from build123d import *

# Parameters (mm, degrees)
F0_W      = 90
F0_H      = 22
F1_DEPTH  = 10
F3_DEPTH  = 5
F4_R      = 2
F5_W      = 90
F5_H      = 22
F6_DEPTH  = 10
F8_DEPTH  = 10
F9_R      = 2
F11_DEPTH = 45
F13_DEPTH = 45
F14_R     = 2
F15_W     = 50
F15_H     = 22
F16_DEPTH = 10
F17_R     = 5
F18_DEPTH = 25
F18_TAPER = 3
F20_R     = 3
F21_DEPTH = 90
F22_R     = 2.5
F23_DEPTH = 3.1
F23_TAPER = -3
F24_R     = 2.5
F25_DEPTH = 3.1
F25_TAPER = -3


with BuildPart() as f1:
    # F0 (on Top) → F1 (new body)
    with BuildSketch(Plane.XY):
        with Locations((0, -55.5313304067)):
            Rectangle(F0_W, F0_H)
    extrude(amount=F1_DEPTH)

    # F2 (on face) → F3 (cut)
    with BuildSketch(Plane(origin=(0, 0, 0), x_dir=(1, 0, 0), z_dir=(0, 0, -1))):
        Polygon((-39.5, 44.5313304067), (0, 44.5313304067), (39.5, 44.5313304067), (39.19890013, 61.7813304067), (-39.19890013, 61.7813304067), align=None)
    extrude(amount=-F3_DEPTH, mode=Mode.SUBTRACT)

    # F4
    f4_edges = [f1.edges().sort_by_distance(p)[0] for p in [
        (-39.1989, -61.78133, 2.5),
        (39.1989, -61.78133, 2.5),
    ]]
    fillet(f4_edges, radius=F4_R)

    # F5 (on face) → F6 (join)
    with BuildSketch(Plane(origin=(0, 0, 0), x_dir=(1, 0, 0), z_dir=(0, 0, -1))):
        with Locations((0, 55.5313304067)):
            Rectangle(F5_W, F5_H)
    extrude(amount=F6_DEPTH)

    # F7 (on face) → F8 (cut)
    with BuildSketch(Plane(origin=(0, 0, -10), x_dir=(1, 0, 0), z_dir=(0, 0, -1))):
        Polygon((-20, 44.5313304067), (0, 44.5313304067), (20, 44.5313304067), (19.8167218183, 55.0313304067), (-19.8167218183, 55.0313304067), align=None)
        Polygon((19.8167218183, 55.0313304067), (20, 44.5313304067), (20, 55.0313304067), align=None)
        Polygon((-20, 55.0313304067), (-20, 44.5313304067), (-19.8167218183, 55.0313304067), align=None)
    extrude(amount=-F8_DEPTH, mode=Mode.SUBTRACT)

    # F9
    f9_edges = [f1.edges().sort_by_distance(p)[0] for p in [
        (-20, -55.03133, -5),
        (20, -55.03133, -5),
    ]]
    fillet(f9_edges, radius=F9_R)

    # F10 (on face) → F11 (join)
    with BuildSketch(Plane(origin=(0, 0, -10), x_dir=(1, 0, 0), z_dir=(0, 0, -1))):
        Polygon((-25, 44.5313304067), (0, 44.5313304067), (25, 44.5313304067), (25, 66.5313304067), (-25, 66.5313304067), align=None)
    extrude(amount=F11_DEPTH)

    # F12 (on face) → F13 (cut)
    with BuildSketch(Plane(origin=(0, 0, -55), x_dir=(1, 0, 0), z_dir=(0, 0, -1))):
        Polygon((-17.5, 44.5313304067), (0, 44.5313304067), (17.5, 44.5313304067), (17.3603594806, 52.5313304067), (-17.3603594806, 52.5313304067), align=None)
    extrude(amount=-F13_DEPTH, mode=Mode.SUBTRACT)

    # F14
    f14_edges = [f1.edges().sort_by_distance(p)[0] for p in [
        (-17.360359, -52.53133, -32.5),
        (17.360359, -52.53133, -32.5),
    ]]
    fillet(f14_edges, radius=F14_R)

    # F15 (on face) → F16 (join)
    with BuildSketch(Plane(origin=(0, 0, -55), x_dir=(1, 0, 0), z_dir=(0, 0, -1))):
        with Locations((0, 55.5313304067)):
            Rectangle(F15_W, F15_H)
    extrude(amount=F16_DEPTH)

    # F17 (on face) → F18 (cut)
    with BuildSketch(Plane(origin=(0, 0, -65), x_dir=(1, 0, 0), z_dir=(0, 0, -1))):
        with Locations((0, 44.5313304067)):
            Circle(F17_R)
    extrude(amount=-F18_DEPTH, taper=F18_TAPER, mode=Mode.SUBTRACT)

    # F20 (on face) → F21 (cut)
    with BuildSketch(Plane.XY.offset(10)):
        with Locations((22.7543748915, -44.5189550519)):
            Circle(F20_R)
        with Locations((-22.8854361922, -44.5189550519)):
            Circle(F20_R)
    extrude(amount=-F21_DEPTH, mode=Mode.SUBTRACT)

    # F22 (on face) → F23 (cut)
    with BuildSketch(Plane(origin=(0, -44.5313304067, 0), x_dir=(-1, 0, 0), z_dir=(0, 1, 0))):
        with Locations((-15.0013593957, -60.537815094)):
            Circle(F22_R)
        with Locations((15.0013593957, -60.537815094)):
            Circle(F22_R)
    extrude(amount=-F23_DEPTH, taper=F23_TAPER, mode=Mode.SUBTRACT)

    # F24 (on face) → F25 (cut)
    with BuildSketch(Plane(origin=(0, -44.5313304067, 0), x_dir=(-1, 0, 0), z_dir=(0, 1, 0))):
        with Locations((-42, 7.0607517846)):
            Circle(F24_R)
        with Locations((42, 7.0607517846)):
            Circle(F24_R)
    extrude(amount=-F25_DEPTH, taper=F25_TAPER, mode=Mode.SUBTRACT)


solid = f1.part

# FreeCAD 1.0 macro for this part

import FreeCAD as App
import Part
import Sketcher
Q = App.Units.Quantity


def edges_at(feature, points):
    """Names of the edges that pass closest to the given points."""
    edges = feature.Shape.Edges
    near = lambda p: min(range(len(edges)), key=lambda i: edges[i].distToShape(Part.Vertex(*p))[0])
    return sorted({f"Edge{near(p) + 1}" for p in points})

doc = App.newDocument("Part")
body = doc.addObject("PartDesign::Body", "Body")

# Sketch on XY plane
sketch1 = body.newObject("Sketcher::SketchObject", "Sketch")
sketch1.AttachmentSupport = (doc.getObject("XY_Plane"), [""])
sketch1.MapMode = "FlatFace"
sketch1.addGeometry([
    Part.LineSegment(App.Vector(-45, -44.53133, 0), App.Vector(-45, -66.53133, 0)),
    Part.LineSegment(App.Vector(-45, -66.53133, 0), App.Vector(45, -66.53133, 0)),
    Part.LineSegment(App.Vector(45, -66.53133, 0), App.Vector(45, -44.53133, 0)),
    Part.LineSegment(App.Vector(45, -44.53133, 0), App.Vector(-45, -44.53133, 0)),
], False)
sketch1.addConstraint([
    Sketcher.Constraint("Coincident", 0, 2, 1, 1),
    Sketcher.Constraint("Coincident", 1, 2, 2, 1),
    Sketcher.Constraint("Coincident", 2, 2, 3, 1),
    Sketcher.Constraint("Coincident", 3, 2, 0, 1),
    Sketcher.Constraint("Vertical", 0),
    Sketcher.Constraint("Horizontal", 1),
    Sketcher.Constraint("Vertical", 2),
    Sketcher.Constraint("Horizontal", 3),
    Sketcher.Constraint("DistanceX", 1, 1, 1, 2, 90.0),
    Sketcher.Constraint("DistanceY", 0, 2, 0, 1, 22.0),
    Sketcher.Constraint("DistanceX", 0, 2, -1, 1, 45.0),
    Sketcher.Constraint("DistanceY", 0, 2, -1, 1, 66.53133),
])
pad1 = body.newObject("PartDesign::Pad", "Pad")
pad1.Profile = sketch1
pad1.Length = 10

# Sketch on XY plane
sketch2 = body.newObject("Sketcher::SketchObject", "Sketch001")
sketch2.AttachmentSupport = (doc.getObject("XY_Plane"), [""])
sketch2.MapMode = "FlatFace"
sketch2.addGeometry([
    Part.LineSegment(App.Vector(-39.5, -44.53133, 0), App.Vector(39.5, -44.53133, 0)),
    Part.LineSegment(App.Vector(39.5, -44.53133, 0), App.Vector(39.1989, -61.78133, 0)),
    Part.LineSegment(App.Vector(39.1989, -61.78133, 0), App.Vector(-39.1989, -61.78133, 0)),
    Part.LineSegment(App.Vector(-39.1989, -61.78133, 0), App.Vector(-39.5, -44.53133, 0)),
], False)
sketch2.addConstraint([
    Sketcher.Constraint("Coincident", 0, 2, 1, 1),
    Sketcher.Constraint("Coincident", 1, 2, 2, 1),
    Sketcher.Constraint("Coincident", 2, 2, 3, 1),
    Sketcher.Constraint("Coincident", 3, 2, 0, 1),
    Sketcher.Constraint("Horizontal", 0),
    Sketcher.Constraint("Horizontal", 2),
    Sketcher.Constraint("Equal", 1, 3),
    Sketcher.Constraint("DistanceX", 0, 1, 0, 2, 79.0),
    Sketcher.Constraint("Angle", 1, Q("-91 deg")),
    Sketcher.Constraint("DistanceX", -1, 1, 0, 2, 39.5),
    Sketcher.Constraint("DistanceY", 1, 2, 0, 2, 17.25),
    Sketcher.Constraint("DistanceY", 0, 2, -1, 1, 44.53133),
])
pocket1 = body.newObject("PartDesign::Pocket", "Pocket")
pocket1.Profile = sketch2
pocket1.Length = 5
pocket1.Reversed = True
doc.recompute()

fillet = body.newObject("PartDesign::Fillet", "Fillet")
fillet.Base = (pocket1, edges_at(pocket1, [(-39.199, -61.781, 2.5), (39.199, -61.781, 2.5)]))
fillet.Radius = 2

# Sketch on XY plane
sketch3 = body.newObject("Sketcher::SketchObject", "Sketch002")
sketch3.AttachmentSupport = (doc.getObject("XY_Plane"), [""])
sketch3.MapMode = "FlatFace"
sketch3.addGeometry([
    Part.LineSegment(App.Vector(-45, -66.53133, 0), App.Vector(-45, -44.53133, 0)),
    Part.LineSegment(App.Vector(-45, -44.53133, 0), App.Vector(45, -44.53133, 0)),
    Part.LineSegment(App.Vector(45, -44.53133, 0), App.Vector(45, -66.53133, 0)),
    Part.LineSegment(App.Vector(45, -66.53133, 0), App.Vector(-45, -66.53133, 0)),
], False)
sketch3.addConstraint([
    Sketcher.Constraint("Coincident", 0, 2, 1, 1),
    Sketcher.Constraint("Coincident", 1, 2, 2, 1),
    Sketcher.Constraint("Coincident", 2, 2, 3, 1),
    Sketcher.Constraint("Coincident", 3, 2, 0, 1),
    Sketcher.Constraint("Vertical", 0),
    Sketcher.Constraint("Horizontal", 1),
    Sketcher.Constraint("Vertical", 2),
    Sketcher.Constraint("Horizontal", 3),
    Sketcher.Constraint("DistanceX", 1, 1, 1, 2, 90.0),
    Sketcher.Constraint("DistanceY", 0, 1, 0, 2, 22.0),
    Sketcher.Constraint("DistanceX", 0, 2, -1, 1, 45.0),
    Sketcher.Constraint("DistanceY", 0, 2, -1, 1, 44.53133),
])
pad2 = body.newObject("PartDesign::Pad", "Pad001")
pad2.Profile = sketch3
pad2.Length = 10
pad2.Reversed = True

# Sketch on XY plane
sketch4 = body.newObject("Sketcher::SketchObject", "Sketch003")
sketch4.AttachmentSupport = (doc.getObject("XY_Plane"), [""])
sketch4.MapMode = "FlatFace"
sketch4.AttachmentOffset = App.Placement(App.Vector(0, 0, -10), App.Rotation())
sketch4.addGeometry([
    Part.LineSegment(App.Vector(-20, -55.03133, 0), App.Vector(-20, -44.53133, 0)),
    Part.LineSegment(App.Vector(-20, -44.53133, 0), App.Vector(20, -44.53133, 0)),
    Part.LineSegment(App.Vector(20, -44.53133, 0), App.Vector(20, -55.03133, 0)),
    Part.LineSegment(App.Vector(20, -55.03133, 0), App.Vector(-20, -55.03133, 0)),
], False)
sketch4.addConstraint([
    Sketcher.Constraint("Coincident", 0, 2, 1, 1),
    Sketcher.Constraint("Coincident", 1, 2, 2, 1),
    Sketcher.Constraint("Coincident", 2, 2, 3, 1),
    Sketcher.Constraint("Coincident", 3, 2, 0, 1),
    Sketcher.Constraint("Vertical", 0),
    Sketcher.Constraint("Horizontal", 1),
    Sketcher.Constraint("Vertical", 2),
    Sketcher.Constraint("Horizontal", 3),
    Sketcher.Constraint("DistanceX", 1, 1, 1, 2, 40.0),
    Sketcher.Constraint("DistanceY", 0, 1, 0, 2, 10.5),
    Sketcher.Constraint("DistanceX", 0, 2, -1, 1, 20.0),
    Sketcher.Constraint("DistanceY", 0, 2, -1, 1, 44.53133),
])
pocket2 = body.newObject("PartDesign::Pocket", "Pocket001")
pocket2.Profile = sketch4
pocket2.Length = 10
pocket2.Reversed = True
doc.recompute()

fillet2 = body.newObject("PartDesign::Fillet", "Fillet001")
fillet2.Base = (pocket2, edges_at(pocket2, [(-20, -55.031, -5), (20, -55.031, -5)]))
fillet2.Radius = 2

# Sketch on XY plane
sketch5 = body.newObject("Sketcher::SketchObject", "Sketch004")
sketch5.AttachmentSupport = (doc.getObject("XY_Plane"), [""])
sketch5.MapMode = "FlatFace"
sketch5.AttachmentOffset = App.Placement(App.Vector(0, 0, -10), App.Rotation())
sketch5.addGeometry([
    Part.LineSegment(App.Vector(-25, -44.53133, 0), App.Vector(25, -44.53133, 0)),
    Part.LineSegment(App.Vector(25, -44.53133, 0), App.Vector(25, -66.53133, 0)),
    Part.LineSegment(App.Vector(25, -66.53133, 0), App.Vector(-25, -66.53133, 0)),
    Part.LineSegment(App.Vector(-25, -66.53133, 0), App.Vector(-25, -44.53133, 0)),
], False)
sketch5.addConstraint([
    Sketcher.Constraint("Coincident", 0, 2, 1, 1),
    Sketcher.Constraint("Coincident", 1, 2, 2, 1),
    Sketcher.Constraint("Coincident", 2, 2, 3, 1),
    Sketcher.Constraint("Coincident", 3, 2, 0, 1),
    Sketcher.Constraint("Horizontal", 0),
    Sketcher.Constraint("Vertical", 1),
    Sketcher.Constraint("Horizontal", 2),
    Sketcher.Constraint("Vertical", 3),
    Sketcher.Constraint("DistanceX", 0, 1, 0, 2, 50.0),
    Sketcher.Constraint("DistanceY", 1, 2, 1, 1, 22.0),
    Sketcher.Constraint("DistanceX", -1, 1, 0, 2, 25.0),
    Sketcher.Constraint("DistanceY", 0, 2, -1, 1, 44.53133),
])
pad3 = body.newObject("PartDesign::Pad", "Pad002")
pad3.Profile = sketch5
pad3.Length = 45
pad3.Reversed = True

# Sketch on XY plane
sketch6 = body.newObject("Sketcher::SketchObject", "Sketch005")
sketch6.AttachmentSupport = (doc.getObject("XY_Plane"), [""])
sketch6.MapMode = "FlatFace"
sketch6.AttachmentOffset = App.Placement(App.Vector(0, 0, -55), App.Rotation())
sketch6.addGeometry([
    Part.LineSegment(App.Vector(-17.5, -44.53133, 0), App.Vector(17.5, -44.53133, 0)),
    Part.LineSegment(App.Vector(17.5, -44.53133, 0), App.Vector(17.360359, -52.53133, 0)),
    Part.LineSegment(App.Vector(17.360359, -52.53133, 0), App.Vector(-17.360359, -52.53133, 0)),
    Part.LineSegment(App.Vector(-17.360359, -52.53133, 0), App.Vector(-17.5, -44.53133, 0)),
], False)
sketch6.addConstraint([
    Sketcher.Constraint("Coincident", 0, 2, 1, 1),
    Sketcher.Constraint("Coincident", 1, 2, 2, 1),
    Sketcher.Constraint("Coincident", 2, 2, 3, 1),
    Sketcher.Constraint("Coincident", 3, 2, 0, 1),
    Sketcher.Constraint("Horizontal", 0),
    Sketcher.Constraint("Horizontal", 2),
    Sketcher.Constraint("Equal", 1, 3),
    Sketcher.Constraint("DistanceX", 0, 1, 0, 2, 35.0),
    Sketcher.Constraint("Angle", 1, Q("-91 deg")),
    Sketcher.Constraint("DistanceY", 1, 2, 0, 2, 8.0),
    Sketcher.Constraint("DistanceX", -1, 1, 0, 2, 17.5),
    Sketcher.Constraint("DistanceY", 0, 2, -1, 1, 44.53133),
])
pocket3 = body.newObject("PartDesign::Pocket", "Pocket002")
pocket3.Profile = sketch6
pocket3.Length = 45
pocket3.Reversed = True
doc.recompute()

fillet3 = body.newObject("PartDesign::Fillet", "Fillet002")
fillet3.Base = (pocket3, edges_at(pocket3, [(-17.36, -52.531, -32.5), (17.36, -52.531, -32.5)]))
fillet3.Radius = 2

# Sketch on XY plane
sketch7 = body.newObject("Sketcher::SketchObject", "Sketch006")
sketch7.AttachmentSupport = (doc.getObject("XY_Plane"), [""])
sketch7.MapMode = "FlatFace"
sketch7.AttachmentOffset = App.Placement(App.Vector(0, 0, -55), App.Rotation())
sketch7.addGeometry([
    Part.LineSegment(App.Vector(-25, -66.53133, 0), App.Vector(-25, -44.53133, 0)),
    Part.LineSegment(App.Vector(-25, -44.53133, 0), App.Vector(25, -44.53133, 0)),
    Part.LineSegment(App.Vector(25, -44.53133, 0), App.Vector(25, -66.53133, 0)),
    Part.LineSegment(App.Vector(25, -66.53133, 0), App.Vector(-25, -66.53133, 0)),
], False)
sketch7.addConstraint([
    Sketcher.Constraint("Coincident", 0, 2, 1, 1),
    Sketcher.Constraint("Coincident", 1, 2, 2, 1),
    Sketcher.Constraint("Coincident", 2, 2, 3, 1),
    Sketcher.Constraint("Coincident", 3, 2, 0, 1),
    Sketcher.Constraint("Vertical", 0),
    Sketcher.Constraint("Horizontal", 1),
    Sketcher.Constraint("Vertical", 2),
    Sketcher.Constraint("Horizontal", 3),
    Sketcher.Constraint("DistanceX", 1, 1, 1, 2, 50.0),
    Sketcher.Constraint("DistanceY", 0, 1, 0, 2, 22.0),
    Sketcher.Constraint("DistanceX", 0, 2, -1, 1, 25.0),
    Sketcher.Constraint("DistanceY", 0, 2, -1, 1, 44.53133),
])
pad4 = body.newObject("PartDesign::Pad", "Pad003")
pad4.Profile = sketch7
pad4.Length = 10
pad4.Reversed = True

# Sketch on XY plane
sketch8 = body.newObject("Sketcher::SketchObject", "Sketch007")
sketch8.AttachmentSupport = (doc.getObject("XY_Plane"), [""])
sketch8.MapMode = "FlatFace"
sketch8.AttachmentOffset = App.Placement(App.Vector(0, 0, -65), App.Rotation())
sketch8.addGeometry(Part.Circle(App.Vector(0, -44.53133, 0), App.Vector(0, 0, 1), 5), False)
sketch8.addConstraint([
    Sketcher.Constraint("PointOnObject", 0, 3, -2),
    Sketcher.Constraint("Diameter", 0, 10.0),
    Sketcher.Constraint("DistanceY", 0, 3, -1, 1, 44.53133),
])
pocket4 = body.newObject("PartDesign::Pocket", "Pocket003")
pocket4.Profile = sketch8
pocket4.Length = 25
pocket4.Reversed = True
pocket4.TaperAngle = -3

# Sketch on XY plane
sketch9 = body.newObject("Sketcher::SketchObject", "Sketch008")
sketch9.AttachmentSupport = (doc.getObject("XY_Plane"), [""])
sketch9.MapMode = "FlatFace"
sketch9.AttachmentOffset = App.Placement(App.Vector(0, 0, 10), App.Rotation())
sketch9.addGeometry([
    Part.Circle(App.Vector(22.754375, -44.518955, 0), App.Vector(0, 0, 1), 3),
    Part.Circle(App.Vector(-22.885436, -44.518955, 0), App.Vector(0, 0, 1), 3),
], False)
sketch9.addConstraint([
    Sketcher.Constraint("Equal", 0, 1),
    Sketcher.Constraint("Horizontal", 0, 3, 1, 3),
    Sketcher.Constraint("Diameter", 0, 6.0),
    Sketcher.Constraint("DistanceX", 1, 3, 0, 3, 45.639811),
    Sketcher.Constraint("DistanceX", -1, 1, 0, 3, 22.754375),
    Sketcher.Constraint("DistanceY", 0, 3, -1, 1, 44.518955),
])
pocket5 = body.newObject("PartDesign::Pocket", "Pocket004")
pocket5.Profile = sketch9
pocket5.Length = 90

# Sketch on XZ plane
sketch10 = body.newObject("Sketcher::SketchObject", "Sketch009")
sketch10.AttachmentSupport = (doc.getObject("XZ_Plane"), [""])
sketch10.MapMode = "FlatFace"
sketch10.AttachmentOffset = App.Placement(App.Vector(0, 0, 44.53133), App.Rotation())
sketch10.addGeometry([
    Part.Circle(App.Vector(15.001359, -60.537815, 0), App.Vector(0, 0, 1), 2.5),
    Part.Circle(App.Vector(-15.001359, -60.537815, 0), App.Vector(0, 0, 1), 2.5),
], False)
sketch10.addConstraint([
    Sketcher.Constraint("Equal", 0, 1),
    Sketcher.Constraint("Symmetric", 0, 3, 1, 3, -2),
    Sketcher.Constraint("Diameter", 0, 5.0),
    Sketcher.Constraint("DistanceX", -1, 1, 0, 3, 15.001359),
    Sketcher.Constraint("DistanceY", 0, 3, -1, 1, 60.537815),
])
pocket6 = body.newObject("PartDesign::Pocket", "Pocket005")
pocket6.Profile = sketch10
pocket6.Length = 3.1
pocket6.Reversed = True
pocket6.TaperAngle = 3

# Sketch on XZ plane
sketch11 = body.newObject("Sketcher::SketchObject", "Sketch010")
sketch11.AttachmentSupport = (doc.getObject("XZ_Plane"), [""])
sketch11.MapMode = "FlatFace"
sketch11.AttachmentOffset = App.Placement(App.Vector(0, 0, 44.53133), App.Rotation())
sketch11.addGeometry([
    Part.Circle(App.Vector(42, 7.060752, 0), App.Vector(0, 0, 1), 2.5),
    Part.Circle(App.Vector(-42, 7.060752, 0), App.Vector(0, 0, 1), 2.5),
], False)
sketch11.addConstraint([
    Sketcher.Constraint("Equal", 0, 1),
    Sketcher.Constraint("Symmetric", 0, 3, 1, 3, -2),
    Sketcher.Constraint("Diameter", 0, 5.0),
    Sketcher.Constraint("DistanceX", -1, 1, 0, 3, 42.0),
    Sketcher.Constraint("DistanceY", -1, 1, 0, 3, 7.060752),
])
pocket7 = body.newObject("PartDesign::Pocket", "Pocket006")
pocket7.Profile = sketch11
pocket7.Length = 3.1
pocket7.Reversed = True
pocket7.TaperAngle = 3

doc.recompute()
